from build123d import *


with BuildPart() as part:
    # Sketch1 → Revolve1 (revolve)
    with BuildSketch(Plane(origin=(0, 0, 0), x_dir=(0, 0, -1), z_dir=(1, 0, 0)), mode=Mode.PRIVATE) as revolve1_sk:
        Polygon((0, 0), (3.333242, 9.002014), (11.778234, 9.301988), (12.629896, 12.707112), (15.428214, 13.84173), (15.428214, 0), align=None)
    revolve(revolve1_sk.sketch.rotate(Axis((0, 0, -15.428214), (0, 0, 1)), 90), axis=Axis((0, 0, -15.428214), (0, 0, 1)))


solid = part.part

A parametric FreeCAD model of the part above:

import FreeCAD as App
import Part
import Sketcher

V = App.Vector
Q = App.Units.Quantity


def add_polygon(sketch, points):
    """Adds a closed chain of lines whose ends are joined by coincident constraints."""
    first, n = sketch.GeometryCount, len(points)
    for a, b in zip(points, points[1:] + points[:1]):
        sketch.addGeometry(Part.LineSegment(App.Vector(*a, 0), App.Vector(*b, 0)), False)
    for i in range(n):
        sketch.addConstraint(Sketcher.Constraint("Coincident", first + i, 2, first + (i + 1) % n, 1))

doc = App.newDocument("Part")
params = doc.addObject("Spreadsheet::Sheet", "Params")
for row, (alias, value) in enumerate([
    ("revolution_angle", "360 deg"),
], start=1):
    params.set(f"A{row}", alias)
    params.set(f"B{row}", "=" + value)
    params.setAlias(f"B{row}", alias)

body = doc.addObject("PartDesign::Body", "Body")

# Sketch on YZ plane
sketch1 = body.newObject("Sketcher::SketchObject", "Sketch")
sketch1.AttachmentSupport = (doc.getObject("YZ_Plane"), [""])
sketch1.MapMode = "FlatFace"
add_polygon(sketch1, [(9, -3.3), (0, 0), (0, -15.4), (13.8, -15.4), (12.7, -12.6), (9.3, -11.8)])  # lines 0-5
sketch1.addConstraint(Sketcher.Constraint("Vertical", 1))
sketch1.addConstraint(Sketcher.Constraint("Horizontal", 2))
sketch1.addConstraint(Sketcher.Constraint("Coincident", 0, 2, -1, 1))
sketch1.addConstraint(Sketcher.Constraint("DistanceX", 2, 1, 2, 2, Q("13.84173 mm")))
sketch1.addConstraint(Sketcher.Constraint("Distance", 0, Q("9.59931 mm")))
sketch1.addConstraint(Sketcher.Constraint("DistanceY", 1, 2, 1, 1, Q("15.428214 mm")))
sketch1.addConstraint(Sketcher.Constraint("DistanceY", 5, 2, -1, 1, Q("3.333242 mm")))
sketch1.addConstraint(Sketcher.Constraint("DistanceY", 2, 2, 3, 2, Q("2.798318 mm")))
sketch1.addConstraint(Sketcher.Constraint("DistanceY", 2, 2, 4, 2, Q("3.64998 mm")))
sketch1.addConstraint(Sketcher.Constraint("Distance", 3, Q("3.019593 mm")))
sketch1.addConstraint(Sketcher.Constraint("Distance", 4, Q("3.510014 mm")))
revolution = body.newObject("PartDesign::Revolution", "Revolution")
revolution.Profile = sketch1
revolution.ReferenceAxis = (sketch1, ["V_Axis"])
revolution.setExpression("Angle", "Params.revolution_angle")

doc.recompute()
